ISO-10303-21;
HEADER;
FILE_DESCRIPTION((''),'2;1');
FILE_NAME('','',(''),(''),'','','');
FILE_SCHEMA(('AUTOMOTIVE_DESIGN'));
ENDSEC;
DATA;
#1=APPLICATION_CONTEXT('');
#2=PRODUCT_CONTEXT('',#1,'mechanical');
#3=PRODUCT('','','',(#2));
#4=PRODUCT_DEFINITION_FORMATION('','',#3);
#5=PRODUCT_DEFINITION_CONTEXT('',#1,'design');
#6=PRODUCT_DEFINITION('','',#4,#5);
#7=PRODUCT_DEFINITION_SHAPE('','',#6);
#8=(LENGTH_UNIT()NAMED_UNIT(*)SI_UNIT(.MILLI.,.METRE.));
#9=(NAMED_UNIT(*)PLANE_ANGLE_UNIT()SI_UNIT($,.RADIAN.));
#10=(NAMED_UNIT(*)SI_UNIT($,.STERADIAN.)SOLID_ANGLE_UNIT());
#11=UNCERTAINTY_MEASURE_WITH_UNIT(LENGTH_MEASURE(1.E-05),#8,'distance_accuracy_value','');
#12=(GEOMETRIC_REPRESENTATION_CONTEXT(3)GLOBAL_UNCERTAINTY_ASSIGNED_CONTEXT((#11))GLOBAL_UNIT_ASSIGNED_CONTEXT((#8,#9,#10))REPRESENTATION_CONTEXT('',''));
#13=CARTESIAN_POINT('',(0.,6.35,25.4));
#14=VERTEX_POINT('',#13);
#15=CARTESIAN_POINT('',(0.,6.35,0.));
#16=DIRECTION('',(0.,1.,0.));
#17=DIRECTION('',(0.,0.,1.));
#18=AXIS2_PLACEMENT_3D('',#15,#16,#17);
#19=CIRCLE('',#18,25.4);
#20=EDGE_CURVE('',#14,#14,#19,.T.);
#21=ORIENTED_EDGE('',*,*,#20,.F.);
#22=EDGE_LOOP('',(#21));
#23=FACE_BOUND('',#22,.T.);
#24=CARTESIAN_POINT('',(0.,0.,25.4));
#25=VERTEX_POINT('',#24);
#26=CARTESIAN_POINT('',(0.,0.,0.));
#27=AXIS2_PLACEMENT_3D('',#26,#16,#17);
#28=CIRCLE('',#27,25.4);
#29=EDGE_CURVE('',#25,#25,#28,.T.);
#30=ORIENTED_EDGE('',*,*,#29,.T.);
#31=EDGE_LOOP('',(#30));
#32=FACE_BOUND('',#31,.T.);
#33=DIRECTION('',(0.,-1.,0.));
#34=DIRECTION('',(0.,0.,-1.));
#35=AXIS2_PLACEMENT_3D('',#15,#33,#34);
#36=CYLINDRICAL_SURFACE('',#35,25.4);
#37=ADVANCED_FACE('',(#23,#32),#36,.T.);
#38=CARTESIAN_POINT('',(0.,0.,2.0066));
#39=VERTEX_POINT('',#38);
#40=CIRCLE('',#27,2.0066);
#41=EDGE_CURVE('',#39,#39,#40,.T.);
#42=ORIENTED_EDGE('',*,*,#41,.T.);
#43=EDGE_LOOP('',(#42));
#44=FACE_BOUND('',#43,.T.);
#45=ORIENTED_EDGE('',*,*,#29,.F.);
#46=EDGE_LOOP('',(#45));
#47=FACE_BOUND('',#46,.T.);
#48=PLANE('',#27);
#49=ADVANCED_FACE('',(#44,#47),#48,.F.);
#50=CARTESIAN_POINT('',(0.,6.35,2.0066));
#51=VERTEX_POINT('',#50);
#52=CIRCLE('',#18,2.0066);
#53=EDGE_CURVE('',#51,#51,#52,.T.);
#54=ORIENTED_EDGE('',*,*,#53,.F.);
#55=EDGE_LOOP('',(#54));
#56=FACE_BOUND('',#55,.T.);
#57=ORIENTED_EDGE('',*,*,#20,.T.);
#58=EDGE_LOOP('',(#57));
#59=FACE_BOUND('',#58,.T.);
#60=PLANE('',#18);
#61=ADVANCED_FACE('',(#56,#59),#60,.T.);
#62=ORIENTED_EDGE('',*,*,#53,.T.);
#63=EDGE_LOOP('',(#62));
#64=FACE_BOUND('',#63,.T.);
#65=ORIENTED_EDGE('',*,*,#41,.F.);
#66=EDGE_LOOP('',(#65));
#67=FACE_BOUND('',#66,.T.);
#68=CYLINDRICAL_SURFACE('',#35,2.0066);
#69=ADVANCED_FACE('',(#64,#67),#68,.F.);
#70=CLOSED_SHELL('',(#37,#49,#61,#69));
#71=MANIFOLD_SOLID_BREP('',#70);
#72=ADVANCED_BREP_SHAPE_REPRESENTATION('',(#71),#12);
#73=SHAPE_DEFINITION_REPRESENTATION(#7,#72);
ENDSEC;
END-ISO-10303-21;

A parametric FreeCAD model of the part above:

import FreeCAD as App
import Part
import Sketcher
from FreeCAD import Vector
Q = App.Units.Quantity

doc = App.newDocument("Part")
body = doc.addObject("PartDesign::Body", "Body")

sketch1 = body.newObject("Sketcher::SketchObject", "Sketch")
sketch1.AttachmentSupport = (doc.getObject("XZ_Plane"), [""])
sketch1.MapMode = "FlatFace"
sketch1.addGeometry([
    Part.Circle(Vector(0, 0, 0), Vector(0, 0, 1), 25.4),
    Part.Circle(Vector(0, 0, 0), Vector(0, 0, 1), 2),
], False)
sketch1.addConstraint([
    Sketcher.Constraint("Coincident", 0, 3, -1, 1),
    Sketcher.Constraint("Coincident", 1, 3, -1, 1),
    Sketcher.Constraint("Diameter", 0, Q("2 in")),
    Sketcher.Constraint("Diameter", 1, Q("0.158 in")),
])
pad1 = body.newObject("PartDesign::Pad", "Pad")
pad1.Profile = sketch1
pad1.Length = Q("0.25 in")
pad1.Reversed = True

doc.recompute()
